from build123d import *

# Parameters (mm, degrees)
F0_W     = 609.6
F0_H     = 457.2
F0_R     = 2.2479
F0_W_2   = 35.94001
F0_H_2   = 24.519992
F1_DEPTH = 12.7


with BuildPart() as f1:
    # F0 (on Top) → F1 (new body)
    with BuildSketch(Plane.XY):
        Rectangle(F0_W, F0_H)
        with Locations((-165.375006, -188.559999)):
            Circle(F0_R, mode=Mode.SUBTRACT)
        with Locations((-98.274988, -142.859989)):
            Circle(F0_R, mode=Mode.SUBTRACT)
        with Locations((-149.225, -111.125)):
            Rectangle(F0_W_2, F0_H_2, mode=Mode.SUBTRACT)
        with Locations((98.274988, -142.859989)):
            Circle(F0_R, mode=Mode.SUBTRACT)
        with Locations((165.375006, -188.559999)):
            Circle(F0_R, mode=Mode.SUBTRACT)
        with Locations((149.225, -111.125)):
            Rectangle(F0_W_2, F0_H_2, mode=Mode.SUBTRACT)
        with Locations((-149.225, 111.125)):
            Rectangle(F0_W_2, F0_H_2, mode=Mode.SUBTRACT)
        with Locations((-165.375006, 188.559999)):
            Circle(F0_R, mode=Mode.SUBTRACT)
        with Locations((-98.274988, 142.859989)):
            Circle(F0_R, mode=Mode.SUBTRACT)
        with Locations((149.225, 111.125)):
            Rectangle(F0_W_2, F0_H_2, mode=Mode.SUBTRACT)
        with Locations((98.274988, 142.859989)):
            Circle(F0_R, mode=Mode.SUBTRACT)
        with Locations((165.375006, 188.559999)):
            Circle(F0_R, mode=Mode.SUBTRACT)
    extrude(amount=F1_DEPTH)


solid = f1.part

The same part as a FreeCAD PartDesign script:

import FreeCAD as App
import Part
import Sketcher

V = App.Vector
Q = App.Units.Quantity


def add_polygon(sketch, points):
    """Adds a closed chain of lines whose ends are joined by coincident constraints."""
    first, n = sketch.GeometryCount, len(points)
    for a, b in zip(points, points[1:] + points[:1]):
        sketch.addGeometry(Part.LineSegment(App.Vector(*a, 0), App.Vector(*b, 0)), False)
    for i in range(n):
        sketch.addConstraint(Sketcher.Constraint("Coincident", first + i, 2, first + (i + 1) % n, 1))

doc = App.newDocument("Part")
body = doc.addObject("PartDesign::Body", "Body")

sketch1 = doc.addObject("Sketcher::SketchObject", "Sketch")
body.addObject(sketch1)
sketch1.AttachmentSupport = (doc.XY_Plane, [""])
sketch1.MapMode = "FlatFace"
add_polygon(sketch1, [(-304.8, 228.6), (-304.8, -228.6), (304.8, -228.6), (304.8, 228.6)])
sketch1.addGeometry(Part.Circle(V(-165.4, -188.6, 0), V(0, 0, 1), 2.2), False)
add_polygon(sketch1, [(-131.3, -123.4), (-167.2, -123.4), (-167.2, -98.9), (-131.3, -98.9)])
sketch1.addGeometry(Part.Circle(V(-98.3, -142.9, 0), V(0, 0, 1), 2.2), False)
sketch1.addGeometry(Part.Circle(V(165.4, -188.6, 0), V(0, 0, 1), 2.2), False)
sketch1.addGeometry(Part.Circle(V(98.3, -142.9, 0), V(0, 0, 1), 2.2), False)
add_polygon(sketch1, [(167.2, -123.4), (131.3, -123.4), (131.3, -98.9), (167.2, -98.9)])
add_polygon(sketch1, [(-131.3, 98.9), (-167.2, 98.9), (-167.2, 123.4), (-131.3, 123.4)])
sketch1.addGeometry(Part.Circle(V(-98.3, 142.9, 0), V(0, 0, 1), 2.2), False)
sketch1.addGeometry(Part.Circle(V(-165.4, 188.6, 0), V(0, 0, 1), 2.2), False)
sketch1.addGeometry(Part.Circle(V(98.3, 142.9, 0), V(0, 0, 1), 2.2), False)
add_polygon(sketch1, [(167.2, 98.9), (131.3, 98.9), (131.3, 123.4), (167.2, 123.4)])
sketch1.addGeometry(Part.Circle(V(165.4, 188.6, 0), V(0, 0, 1), 2.2), False)
sketch1.addConstraint([
    Sketcher.Constraint("Vertical", 0),
    Sketcher.Constraint("Horizontal", 1),
    Sketcher.Constraint("Vertical", 2),
    Sketcher.Constraint("Horizontal", 3),
    Sketcher.Constraint("Horizontal", 5),
    Sketcher.Constraint("Vertical", 6),
    Sketcher.Constraint("Horizontal", 7),
    Sketcher.Constraint("Vertical", 8),
    Sketcher.Constraint("Horizontal", 12),
    Sketcher.Constraint("Vertical", 13),
    Sketcher.Constraint("Horizontal", 14),
    Sketcher.Constraint("Vertical", 15),
    Sketcher.Constraint("Horizontal", 16),
    Sketcher.Constraint("Vertical", 17),
    Sketcher.Constraint("Horizontal", 18),
    Sketcher.Constraint("Vertical", 19),
    Sketcher.Constraint("Horizontal", 23),
    Sketcher.Constraint("Vertical", 24),
    Sketcher.Constraint("Horizontal", 25),
    Sketcher.Constraint("Vertical", 26),
    Sketcher.Constraint("Equal", 4, 9),
    Sketcher.Constraint("Equal", 9, 10),
    Sketcher.Constraint("Equal", 10, 11),
    Sketcher.Constraint("Equal", 11, 20),
    Sketcher.Constraint("Equal", 20, 21),
    Sketcher.Constraint("Equal", 21, 22),
    Sketcher.Constraint("Equal", 22, 27),
    Sketcher.Constraint("Symmetric", 11, 3, 20, 3, -1, 1),
    Sketcher.Constraint("Symmetric", 10, 3, 21, 3, -1, 1),
    Sketcher.Constraint("Symmetric", 9, 3, 22, 3, -1, 1),
    Sketcher.Constraint("Symmetric", 4, 3, 27, 3, -1, 1),
    Sketcher.Constraint("Symmetric", 0, 2, 2, 2, -1, 1),
    Sketcher.Constraint("Symmetric", 14, 2, 16, 2, -1, 1),
    Sketcher.Constraint("Symmetric", 12, 2, 18, 2, -1, 1),
    Sketcher.Constraint("Symmetric", 7, 2, 23, 2, -1, 1),
    Sketcher.Constraint("Symmetric", 5, 2, 25, 2, -1, 1),
    Sketcher.Constraint("Symmetric", 4, 3, 10, 3, -2),
    Sketcher.Constraint("Symmetric", 9, 3, 11, 3, -2),
    Sketcher.Constraint("Symmetric", 8, 2, 12, 2, -2),
    Sketcher.Constraint("Symmetric", 6, 2, 14, 2, -2),
    Sketcher.Constraint("DistanceX", 1, 1, 1, 2, Q("24 in")),
    Sketcher.Constraint("DistanceY", 0, 2, 0, 1, Q("18 in")),
    Sketcher.Constraint("Diameter", 4, Q("0.177 in")),
    Sketcher.Constraint("DistanceY", 6, 2, 17, 2, Q("8.75 in")),
    Sketcher.Constraint("DistanceX", 5, 2, 5, 1, 35.94001),
    Sketcher.Constraint("DistanceY", 4, 3, -1, 1, 188.559999),
    Sketcher.Constraint("DistanceX", 5, 2, 4, 3, 1.819999),
    Sketcher.Constraint("DistanceY", 6, 1, 6, 2, 24.519992),
    Sketcher.Constraint("DistanceY", 9, 3, -1, 1, 142.859989),
    Sketcher.Constraint("DistanceX", 4, 3, 9, 3, 67.100018),
    Sketcher.Constraint("DistanceX", 0, 2, 9, 3, 206.525012),
])
pad1 = doc.addObject("PartDesign::Pad", "Pad")
body.addObject(pad1)
pad1.Profile = sketch1
pad1.Length = Q("0.5 in")

doc.recompute()
